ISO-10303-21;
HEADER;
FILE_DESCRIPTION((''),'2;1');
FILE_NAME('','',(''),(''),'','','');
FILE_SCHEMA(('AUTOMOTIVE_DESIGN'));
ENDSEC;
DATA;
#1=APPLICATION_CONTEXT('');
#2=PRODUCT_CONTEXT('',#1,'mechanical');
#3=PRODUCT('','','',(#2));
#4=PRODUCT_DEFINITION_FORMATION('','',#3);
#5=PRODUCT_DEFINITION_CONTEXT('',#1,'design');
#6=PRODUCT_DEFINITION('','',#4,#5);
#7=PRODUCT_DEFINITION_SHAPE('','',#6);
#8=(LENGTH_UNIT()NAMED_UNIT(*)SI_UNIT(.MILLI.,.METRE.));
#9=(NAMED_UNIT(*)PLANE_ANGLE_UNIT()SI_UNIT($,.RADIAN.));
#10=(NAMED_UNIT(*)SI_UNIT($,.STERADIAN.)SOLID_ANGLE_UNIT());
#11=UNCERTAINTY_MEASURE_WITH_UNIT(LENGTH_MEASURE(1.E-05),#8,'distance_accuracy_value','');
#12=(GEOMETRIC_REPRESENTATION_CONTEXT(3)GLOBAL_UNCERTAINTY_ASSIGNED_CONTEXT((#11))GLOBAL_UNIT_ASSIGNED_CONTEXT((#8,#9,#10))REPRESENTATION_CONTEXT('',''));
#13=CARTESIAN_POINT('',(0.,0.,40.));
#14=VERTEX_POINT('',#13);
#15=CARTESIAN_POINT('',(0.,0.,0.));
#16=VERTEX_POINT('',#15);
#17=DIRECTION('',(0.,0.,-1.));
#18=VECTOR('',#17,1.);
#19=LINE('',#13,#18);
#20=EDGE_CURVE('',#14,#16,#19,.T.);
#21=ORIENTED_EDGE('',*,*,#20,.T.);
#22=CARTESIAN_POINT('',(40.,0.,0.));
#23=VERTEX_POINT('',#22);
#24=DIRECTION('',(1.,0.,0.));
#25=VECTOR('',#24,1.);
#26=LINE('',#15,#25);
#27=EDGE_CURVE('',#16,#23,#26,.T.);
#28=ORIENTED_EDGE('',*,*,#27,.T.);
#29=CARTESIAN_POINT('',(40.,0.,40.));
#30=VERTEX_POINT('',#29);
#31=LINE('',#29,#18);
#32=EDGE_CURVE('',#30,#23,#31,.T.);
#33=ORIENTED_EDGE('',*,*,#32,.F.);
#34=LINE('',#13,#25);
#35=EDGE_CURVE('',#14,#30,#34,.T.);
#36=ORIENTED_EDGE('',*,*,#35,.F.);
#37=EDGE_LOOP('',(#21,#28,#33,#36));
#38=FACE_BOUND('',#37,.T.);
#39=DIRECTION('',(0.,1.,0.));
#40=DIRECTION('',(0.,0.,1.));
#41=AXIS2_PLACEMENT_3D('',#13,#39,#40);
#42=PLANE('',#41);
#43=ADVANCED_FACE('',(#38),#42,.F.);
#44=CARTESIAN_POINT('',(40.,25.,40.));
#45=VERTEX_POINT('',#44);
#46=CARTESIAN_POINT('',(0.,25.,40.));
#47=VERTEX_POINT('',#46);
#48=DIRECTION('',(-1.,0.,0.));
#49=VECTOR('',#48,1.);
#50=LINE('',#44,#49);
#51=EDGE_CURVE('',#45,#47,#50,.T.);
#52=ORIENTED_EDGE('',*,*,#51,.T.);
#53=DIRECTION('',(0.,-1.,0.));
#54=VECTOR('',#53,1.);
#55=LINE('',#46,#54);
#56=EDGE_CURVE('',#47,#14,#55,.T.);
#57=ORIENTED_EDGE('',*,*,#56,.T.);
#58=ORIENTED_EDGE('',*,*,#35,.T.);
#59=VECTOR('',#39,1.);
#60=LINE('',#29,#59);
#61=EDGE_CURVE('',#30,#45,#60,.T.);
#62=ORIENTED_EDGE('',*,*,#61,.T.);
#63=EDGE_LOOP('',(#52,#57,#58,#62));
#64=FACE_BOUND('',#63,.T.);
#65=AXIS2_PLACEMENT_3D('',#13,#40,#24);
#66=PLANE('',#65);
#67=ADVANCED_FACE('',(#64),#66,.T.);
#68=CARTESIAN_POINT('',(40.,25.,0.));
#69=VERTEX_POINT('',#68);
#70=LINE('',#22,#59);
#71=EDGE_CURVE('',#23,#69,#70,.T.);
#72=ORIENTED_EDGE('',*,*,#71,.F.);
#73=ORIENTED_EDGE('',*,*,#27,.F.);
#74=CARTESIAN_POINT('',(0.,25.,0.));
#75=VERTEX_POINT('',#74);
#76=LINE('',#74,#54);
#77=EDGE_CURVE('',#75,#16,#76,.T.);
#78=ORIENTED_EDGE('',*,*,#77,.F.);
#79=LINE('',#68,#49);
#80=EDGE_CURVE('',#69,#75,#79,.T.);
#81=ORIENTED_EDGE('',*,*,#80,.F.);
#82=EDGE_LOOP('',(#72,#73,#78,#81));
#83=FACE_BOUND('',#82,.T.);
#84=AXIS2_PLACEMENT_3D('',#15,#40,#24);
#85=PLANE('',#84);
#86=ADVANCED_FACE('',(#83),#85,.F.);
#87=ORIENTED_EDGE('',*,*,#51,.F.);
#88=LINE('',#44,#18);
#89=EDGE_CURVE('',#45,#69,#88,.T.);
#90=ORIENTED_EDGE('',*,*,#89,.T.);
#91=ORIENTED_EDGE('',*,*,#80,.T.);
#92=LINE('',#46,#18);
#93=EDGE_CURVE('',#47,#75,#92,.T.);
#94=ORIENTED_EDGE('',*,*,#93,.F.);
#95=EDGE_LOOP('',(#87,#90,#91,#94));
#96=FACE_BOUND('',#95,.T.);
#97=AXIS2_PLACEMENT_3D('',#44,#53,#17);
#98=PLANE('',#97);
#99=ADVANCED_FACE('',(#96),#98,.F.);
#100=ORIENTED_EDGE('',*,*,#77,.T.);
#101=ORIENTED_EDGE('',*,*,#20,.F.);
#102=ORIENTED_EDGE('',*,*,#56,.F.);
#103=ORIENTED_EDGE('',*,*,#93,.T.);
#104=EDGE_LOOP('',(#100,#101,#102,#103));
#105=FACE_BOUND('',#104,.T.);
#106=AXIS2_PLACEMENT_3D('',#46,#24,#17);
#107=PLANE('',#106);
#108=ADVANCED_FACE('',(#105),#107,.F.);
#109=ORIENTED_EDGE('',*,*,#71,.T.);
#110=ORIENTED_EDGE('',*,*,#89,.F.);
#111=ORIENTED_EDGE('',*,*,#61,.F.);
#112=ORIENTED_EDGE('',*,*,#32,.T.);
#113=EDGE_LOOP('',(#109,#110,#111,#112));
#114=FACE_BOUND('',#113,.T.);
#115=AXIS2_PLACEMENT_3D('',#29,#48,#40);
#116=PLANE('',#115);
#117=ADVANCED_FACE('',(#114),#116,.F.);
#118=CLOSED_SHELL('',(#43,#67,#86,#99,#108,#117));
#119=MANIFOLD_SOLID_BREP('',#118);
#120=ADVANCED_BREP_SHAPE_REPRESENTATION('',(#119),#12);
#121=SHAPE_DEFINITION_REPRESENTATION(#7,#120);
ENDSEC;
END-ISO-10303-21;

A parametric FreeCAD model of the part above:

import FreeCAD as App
import Part
import Sketcher
from FreeCAD import Vector


def add_polygon(sketch, points):
    """Adds a closed chain of lines whose ends are joined by coincident constraints."""
    first, n = sketch.GeometryCount, len(points)
    for a, b in zip(points, points[1:] + points[:1]):
        sketch.addGeometry(Part.LineSegment(App.Vector(*a, 0), App.Vector(*b, 0)), False)
    for i in range(n):
        sketch.addConstraint(Sketcher.Constraint("Coincident", first + i, 2, first + (i + 1) % n, 1))

doc = App.newDocument("Part")
body = doc.addObject("PartDesign::Body", "Body")

# Sketch on XY plane
sketch1 = body.newObject("Sketcher::SketchObject", "Sketch")
sketch1.AttachmentSupport = (doc.getObject("XY_Plane"), [""])
sketch1.MapMode = "FlatFace"
add_polygon(sketch1, [(0, 25), (0, 0), (40, 0), (40, 25)])  # lines 0-3
sketch1.addConstraint([
    Sketcher.Constraint("Vertical", 0),
    Sketcher.Constraint("Horizontal", 1),
    Sketcher.Constraint("Vertical", 2),
    Sketcher.Constraint("Horizontal", 3),
    Sketcher.Constraint("Coincident", 0, 2, -1, 1),
    Sketcher.Constraint("DistanceX", 1, 1, 1, 2, 40.0),
    Sketcher.Constraint("DistanceY", 0, 2, 0, 1, 25.0),
])
pad1 = body.newObject("PartDesign::Pad", "Pad")
pad1.Profile = sketch1
pad1.Length = 40

doc.recompute()
